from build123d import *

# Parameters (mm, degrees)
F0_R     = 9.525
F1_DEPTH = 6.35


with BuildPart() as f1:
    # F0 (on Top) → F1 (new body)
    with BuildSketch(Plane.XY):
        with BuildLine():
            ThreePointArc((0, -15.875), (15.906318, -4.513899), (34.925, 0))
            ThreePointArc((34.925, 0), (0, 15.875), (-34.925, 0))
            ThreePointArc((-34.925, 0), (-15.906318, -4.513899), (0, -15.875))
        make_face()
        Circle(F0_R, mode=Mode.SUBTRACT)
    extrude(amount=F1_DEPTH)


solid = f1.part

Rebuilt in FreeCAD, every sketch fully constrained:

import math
import FreeCAD as App
import Part
import Sketcher
Q = App.Units.Quantity

doc = App.newDocument("Part")
body = doc.addObject("PartDesign::Body", "Body")

sketch1 = body.newObject("Sketcher::SketchObject", "Sketch")
sketch1.AttachmentSupport = (doc.getObject("XY_Plane"), [""])
sketch1.MapMode = "FlatFace"
sketch1.addGeometry(Part.ArcOfCircle(Part.Circle(App.Vector(37, -51, 0), App.Vector(0, 0, 1), 51), math.radians(92), math.radians(137)), False)
sketch1.addGeometry(Part.ArcOfCircle(Part.Circle(App.Vector(0, -30, 0), App.Vector(0, 0, 1), 46), math.radians(41), math.radians(139)), False)
sketch1.addGeometry(Part.ArcOfCircle(Part.Circle(App.Vector(-37, -51, 0), App.Vector(0, 0, 1), 51), math.radians(43), math.radians(88)), False)
sketch1.addGeometry(Part.Circle(App.Vector(0, 0, 0), App.Vector(0, 0, 1), 10), False)
sketch1.addConstraint(Sketcher.Constraint("Coincident", 0, 1, 1, 1))
sketch1.addConstraint(Sketcher.Constraint("Coincident", 1, 2, 2, 2))
sketch1.addConstraint(Sketcher.Constraint("Coincident", 2, 1, 0, 2))
sketch1.addConstraint(Sketcher.Constraint("Coincident", 3, 3, -1, 1))
sketch1.addConstraint(Sketcher.Constraint("Equal", 0, 2))
sketch1.addConstraint(Sketcher.Constraint("Symmetric", 0, 1, 1, 2, -1, 1))
sketch1.addConstraint(Sketcher.Constraint("Symmetric", 0, 3, 2, 3, -2))
sketch1.addConstraint(Sketcher.Constraint("Radius", 0, Q("2.0000002 in")))
sketch1.addConstraint(Sketcher.Constraint("Diameter", 3, Q("0.75 in")))
sketch1.addConstraint(Sketcher.Constraint("Radius", 1, Q("1.825 in")))
sketch1.addConstraint(Sketcher.Constraint("DistanceY", 1, 3, -1, 1, Q("1.2 in")))
sketch1.addConstraint(Sketcher.Constraint("DistanceY", 2, 1, -1, 1, Q("0.625 in")))
pad1 = body.newObject("PartDesign::Pad", "Pad")
pad1.Profile = sketch1
pad1.Length = Q("0.25 in")

doc.recompute()
